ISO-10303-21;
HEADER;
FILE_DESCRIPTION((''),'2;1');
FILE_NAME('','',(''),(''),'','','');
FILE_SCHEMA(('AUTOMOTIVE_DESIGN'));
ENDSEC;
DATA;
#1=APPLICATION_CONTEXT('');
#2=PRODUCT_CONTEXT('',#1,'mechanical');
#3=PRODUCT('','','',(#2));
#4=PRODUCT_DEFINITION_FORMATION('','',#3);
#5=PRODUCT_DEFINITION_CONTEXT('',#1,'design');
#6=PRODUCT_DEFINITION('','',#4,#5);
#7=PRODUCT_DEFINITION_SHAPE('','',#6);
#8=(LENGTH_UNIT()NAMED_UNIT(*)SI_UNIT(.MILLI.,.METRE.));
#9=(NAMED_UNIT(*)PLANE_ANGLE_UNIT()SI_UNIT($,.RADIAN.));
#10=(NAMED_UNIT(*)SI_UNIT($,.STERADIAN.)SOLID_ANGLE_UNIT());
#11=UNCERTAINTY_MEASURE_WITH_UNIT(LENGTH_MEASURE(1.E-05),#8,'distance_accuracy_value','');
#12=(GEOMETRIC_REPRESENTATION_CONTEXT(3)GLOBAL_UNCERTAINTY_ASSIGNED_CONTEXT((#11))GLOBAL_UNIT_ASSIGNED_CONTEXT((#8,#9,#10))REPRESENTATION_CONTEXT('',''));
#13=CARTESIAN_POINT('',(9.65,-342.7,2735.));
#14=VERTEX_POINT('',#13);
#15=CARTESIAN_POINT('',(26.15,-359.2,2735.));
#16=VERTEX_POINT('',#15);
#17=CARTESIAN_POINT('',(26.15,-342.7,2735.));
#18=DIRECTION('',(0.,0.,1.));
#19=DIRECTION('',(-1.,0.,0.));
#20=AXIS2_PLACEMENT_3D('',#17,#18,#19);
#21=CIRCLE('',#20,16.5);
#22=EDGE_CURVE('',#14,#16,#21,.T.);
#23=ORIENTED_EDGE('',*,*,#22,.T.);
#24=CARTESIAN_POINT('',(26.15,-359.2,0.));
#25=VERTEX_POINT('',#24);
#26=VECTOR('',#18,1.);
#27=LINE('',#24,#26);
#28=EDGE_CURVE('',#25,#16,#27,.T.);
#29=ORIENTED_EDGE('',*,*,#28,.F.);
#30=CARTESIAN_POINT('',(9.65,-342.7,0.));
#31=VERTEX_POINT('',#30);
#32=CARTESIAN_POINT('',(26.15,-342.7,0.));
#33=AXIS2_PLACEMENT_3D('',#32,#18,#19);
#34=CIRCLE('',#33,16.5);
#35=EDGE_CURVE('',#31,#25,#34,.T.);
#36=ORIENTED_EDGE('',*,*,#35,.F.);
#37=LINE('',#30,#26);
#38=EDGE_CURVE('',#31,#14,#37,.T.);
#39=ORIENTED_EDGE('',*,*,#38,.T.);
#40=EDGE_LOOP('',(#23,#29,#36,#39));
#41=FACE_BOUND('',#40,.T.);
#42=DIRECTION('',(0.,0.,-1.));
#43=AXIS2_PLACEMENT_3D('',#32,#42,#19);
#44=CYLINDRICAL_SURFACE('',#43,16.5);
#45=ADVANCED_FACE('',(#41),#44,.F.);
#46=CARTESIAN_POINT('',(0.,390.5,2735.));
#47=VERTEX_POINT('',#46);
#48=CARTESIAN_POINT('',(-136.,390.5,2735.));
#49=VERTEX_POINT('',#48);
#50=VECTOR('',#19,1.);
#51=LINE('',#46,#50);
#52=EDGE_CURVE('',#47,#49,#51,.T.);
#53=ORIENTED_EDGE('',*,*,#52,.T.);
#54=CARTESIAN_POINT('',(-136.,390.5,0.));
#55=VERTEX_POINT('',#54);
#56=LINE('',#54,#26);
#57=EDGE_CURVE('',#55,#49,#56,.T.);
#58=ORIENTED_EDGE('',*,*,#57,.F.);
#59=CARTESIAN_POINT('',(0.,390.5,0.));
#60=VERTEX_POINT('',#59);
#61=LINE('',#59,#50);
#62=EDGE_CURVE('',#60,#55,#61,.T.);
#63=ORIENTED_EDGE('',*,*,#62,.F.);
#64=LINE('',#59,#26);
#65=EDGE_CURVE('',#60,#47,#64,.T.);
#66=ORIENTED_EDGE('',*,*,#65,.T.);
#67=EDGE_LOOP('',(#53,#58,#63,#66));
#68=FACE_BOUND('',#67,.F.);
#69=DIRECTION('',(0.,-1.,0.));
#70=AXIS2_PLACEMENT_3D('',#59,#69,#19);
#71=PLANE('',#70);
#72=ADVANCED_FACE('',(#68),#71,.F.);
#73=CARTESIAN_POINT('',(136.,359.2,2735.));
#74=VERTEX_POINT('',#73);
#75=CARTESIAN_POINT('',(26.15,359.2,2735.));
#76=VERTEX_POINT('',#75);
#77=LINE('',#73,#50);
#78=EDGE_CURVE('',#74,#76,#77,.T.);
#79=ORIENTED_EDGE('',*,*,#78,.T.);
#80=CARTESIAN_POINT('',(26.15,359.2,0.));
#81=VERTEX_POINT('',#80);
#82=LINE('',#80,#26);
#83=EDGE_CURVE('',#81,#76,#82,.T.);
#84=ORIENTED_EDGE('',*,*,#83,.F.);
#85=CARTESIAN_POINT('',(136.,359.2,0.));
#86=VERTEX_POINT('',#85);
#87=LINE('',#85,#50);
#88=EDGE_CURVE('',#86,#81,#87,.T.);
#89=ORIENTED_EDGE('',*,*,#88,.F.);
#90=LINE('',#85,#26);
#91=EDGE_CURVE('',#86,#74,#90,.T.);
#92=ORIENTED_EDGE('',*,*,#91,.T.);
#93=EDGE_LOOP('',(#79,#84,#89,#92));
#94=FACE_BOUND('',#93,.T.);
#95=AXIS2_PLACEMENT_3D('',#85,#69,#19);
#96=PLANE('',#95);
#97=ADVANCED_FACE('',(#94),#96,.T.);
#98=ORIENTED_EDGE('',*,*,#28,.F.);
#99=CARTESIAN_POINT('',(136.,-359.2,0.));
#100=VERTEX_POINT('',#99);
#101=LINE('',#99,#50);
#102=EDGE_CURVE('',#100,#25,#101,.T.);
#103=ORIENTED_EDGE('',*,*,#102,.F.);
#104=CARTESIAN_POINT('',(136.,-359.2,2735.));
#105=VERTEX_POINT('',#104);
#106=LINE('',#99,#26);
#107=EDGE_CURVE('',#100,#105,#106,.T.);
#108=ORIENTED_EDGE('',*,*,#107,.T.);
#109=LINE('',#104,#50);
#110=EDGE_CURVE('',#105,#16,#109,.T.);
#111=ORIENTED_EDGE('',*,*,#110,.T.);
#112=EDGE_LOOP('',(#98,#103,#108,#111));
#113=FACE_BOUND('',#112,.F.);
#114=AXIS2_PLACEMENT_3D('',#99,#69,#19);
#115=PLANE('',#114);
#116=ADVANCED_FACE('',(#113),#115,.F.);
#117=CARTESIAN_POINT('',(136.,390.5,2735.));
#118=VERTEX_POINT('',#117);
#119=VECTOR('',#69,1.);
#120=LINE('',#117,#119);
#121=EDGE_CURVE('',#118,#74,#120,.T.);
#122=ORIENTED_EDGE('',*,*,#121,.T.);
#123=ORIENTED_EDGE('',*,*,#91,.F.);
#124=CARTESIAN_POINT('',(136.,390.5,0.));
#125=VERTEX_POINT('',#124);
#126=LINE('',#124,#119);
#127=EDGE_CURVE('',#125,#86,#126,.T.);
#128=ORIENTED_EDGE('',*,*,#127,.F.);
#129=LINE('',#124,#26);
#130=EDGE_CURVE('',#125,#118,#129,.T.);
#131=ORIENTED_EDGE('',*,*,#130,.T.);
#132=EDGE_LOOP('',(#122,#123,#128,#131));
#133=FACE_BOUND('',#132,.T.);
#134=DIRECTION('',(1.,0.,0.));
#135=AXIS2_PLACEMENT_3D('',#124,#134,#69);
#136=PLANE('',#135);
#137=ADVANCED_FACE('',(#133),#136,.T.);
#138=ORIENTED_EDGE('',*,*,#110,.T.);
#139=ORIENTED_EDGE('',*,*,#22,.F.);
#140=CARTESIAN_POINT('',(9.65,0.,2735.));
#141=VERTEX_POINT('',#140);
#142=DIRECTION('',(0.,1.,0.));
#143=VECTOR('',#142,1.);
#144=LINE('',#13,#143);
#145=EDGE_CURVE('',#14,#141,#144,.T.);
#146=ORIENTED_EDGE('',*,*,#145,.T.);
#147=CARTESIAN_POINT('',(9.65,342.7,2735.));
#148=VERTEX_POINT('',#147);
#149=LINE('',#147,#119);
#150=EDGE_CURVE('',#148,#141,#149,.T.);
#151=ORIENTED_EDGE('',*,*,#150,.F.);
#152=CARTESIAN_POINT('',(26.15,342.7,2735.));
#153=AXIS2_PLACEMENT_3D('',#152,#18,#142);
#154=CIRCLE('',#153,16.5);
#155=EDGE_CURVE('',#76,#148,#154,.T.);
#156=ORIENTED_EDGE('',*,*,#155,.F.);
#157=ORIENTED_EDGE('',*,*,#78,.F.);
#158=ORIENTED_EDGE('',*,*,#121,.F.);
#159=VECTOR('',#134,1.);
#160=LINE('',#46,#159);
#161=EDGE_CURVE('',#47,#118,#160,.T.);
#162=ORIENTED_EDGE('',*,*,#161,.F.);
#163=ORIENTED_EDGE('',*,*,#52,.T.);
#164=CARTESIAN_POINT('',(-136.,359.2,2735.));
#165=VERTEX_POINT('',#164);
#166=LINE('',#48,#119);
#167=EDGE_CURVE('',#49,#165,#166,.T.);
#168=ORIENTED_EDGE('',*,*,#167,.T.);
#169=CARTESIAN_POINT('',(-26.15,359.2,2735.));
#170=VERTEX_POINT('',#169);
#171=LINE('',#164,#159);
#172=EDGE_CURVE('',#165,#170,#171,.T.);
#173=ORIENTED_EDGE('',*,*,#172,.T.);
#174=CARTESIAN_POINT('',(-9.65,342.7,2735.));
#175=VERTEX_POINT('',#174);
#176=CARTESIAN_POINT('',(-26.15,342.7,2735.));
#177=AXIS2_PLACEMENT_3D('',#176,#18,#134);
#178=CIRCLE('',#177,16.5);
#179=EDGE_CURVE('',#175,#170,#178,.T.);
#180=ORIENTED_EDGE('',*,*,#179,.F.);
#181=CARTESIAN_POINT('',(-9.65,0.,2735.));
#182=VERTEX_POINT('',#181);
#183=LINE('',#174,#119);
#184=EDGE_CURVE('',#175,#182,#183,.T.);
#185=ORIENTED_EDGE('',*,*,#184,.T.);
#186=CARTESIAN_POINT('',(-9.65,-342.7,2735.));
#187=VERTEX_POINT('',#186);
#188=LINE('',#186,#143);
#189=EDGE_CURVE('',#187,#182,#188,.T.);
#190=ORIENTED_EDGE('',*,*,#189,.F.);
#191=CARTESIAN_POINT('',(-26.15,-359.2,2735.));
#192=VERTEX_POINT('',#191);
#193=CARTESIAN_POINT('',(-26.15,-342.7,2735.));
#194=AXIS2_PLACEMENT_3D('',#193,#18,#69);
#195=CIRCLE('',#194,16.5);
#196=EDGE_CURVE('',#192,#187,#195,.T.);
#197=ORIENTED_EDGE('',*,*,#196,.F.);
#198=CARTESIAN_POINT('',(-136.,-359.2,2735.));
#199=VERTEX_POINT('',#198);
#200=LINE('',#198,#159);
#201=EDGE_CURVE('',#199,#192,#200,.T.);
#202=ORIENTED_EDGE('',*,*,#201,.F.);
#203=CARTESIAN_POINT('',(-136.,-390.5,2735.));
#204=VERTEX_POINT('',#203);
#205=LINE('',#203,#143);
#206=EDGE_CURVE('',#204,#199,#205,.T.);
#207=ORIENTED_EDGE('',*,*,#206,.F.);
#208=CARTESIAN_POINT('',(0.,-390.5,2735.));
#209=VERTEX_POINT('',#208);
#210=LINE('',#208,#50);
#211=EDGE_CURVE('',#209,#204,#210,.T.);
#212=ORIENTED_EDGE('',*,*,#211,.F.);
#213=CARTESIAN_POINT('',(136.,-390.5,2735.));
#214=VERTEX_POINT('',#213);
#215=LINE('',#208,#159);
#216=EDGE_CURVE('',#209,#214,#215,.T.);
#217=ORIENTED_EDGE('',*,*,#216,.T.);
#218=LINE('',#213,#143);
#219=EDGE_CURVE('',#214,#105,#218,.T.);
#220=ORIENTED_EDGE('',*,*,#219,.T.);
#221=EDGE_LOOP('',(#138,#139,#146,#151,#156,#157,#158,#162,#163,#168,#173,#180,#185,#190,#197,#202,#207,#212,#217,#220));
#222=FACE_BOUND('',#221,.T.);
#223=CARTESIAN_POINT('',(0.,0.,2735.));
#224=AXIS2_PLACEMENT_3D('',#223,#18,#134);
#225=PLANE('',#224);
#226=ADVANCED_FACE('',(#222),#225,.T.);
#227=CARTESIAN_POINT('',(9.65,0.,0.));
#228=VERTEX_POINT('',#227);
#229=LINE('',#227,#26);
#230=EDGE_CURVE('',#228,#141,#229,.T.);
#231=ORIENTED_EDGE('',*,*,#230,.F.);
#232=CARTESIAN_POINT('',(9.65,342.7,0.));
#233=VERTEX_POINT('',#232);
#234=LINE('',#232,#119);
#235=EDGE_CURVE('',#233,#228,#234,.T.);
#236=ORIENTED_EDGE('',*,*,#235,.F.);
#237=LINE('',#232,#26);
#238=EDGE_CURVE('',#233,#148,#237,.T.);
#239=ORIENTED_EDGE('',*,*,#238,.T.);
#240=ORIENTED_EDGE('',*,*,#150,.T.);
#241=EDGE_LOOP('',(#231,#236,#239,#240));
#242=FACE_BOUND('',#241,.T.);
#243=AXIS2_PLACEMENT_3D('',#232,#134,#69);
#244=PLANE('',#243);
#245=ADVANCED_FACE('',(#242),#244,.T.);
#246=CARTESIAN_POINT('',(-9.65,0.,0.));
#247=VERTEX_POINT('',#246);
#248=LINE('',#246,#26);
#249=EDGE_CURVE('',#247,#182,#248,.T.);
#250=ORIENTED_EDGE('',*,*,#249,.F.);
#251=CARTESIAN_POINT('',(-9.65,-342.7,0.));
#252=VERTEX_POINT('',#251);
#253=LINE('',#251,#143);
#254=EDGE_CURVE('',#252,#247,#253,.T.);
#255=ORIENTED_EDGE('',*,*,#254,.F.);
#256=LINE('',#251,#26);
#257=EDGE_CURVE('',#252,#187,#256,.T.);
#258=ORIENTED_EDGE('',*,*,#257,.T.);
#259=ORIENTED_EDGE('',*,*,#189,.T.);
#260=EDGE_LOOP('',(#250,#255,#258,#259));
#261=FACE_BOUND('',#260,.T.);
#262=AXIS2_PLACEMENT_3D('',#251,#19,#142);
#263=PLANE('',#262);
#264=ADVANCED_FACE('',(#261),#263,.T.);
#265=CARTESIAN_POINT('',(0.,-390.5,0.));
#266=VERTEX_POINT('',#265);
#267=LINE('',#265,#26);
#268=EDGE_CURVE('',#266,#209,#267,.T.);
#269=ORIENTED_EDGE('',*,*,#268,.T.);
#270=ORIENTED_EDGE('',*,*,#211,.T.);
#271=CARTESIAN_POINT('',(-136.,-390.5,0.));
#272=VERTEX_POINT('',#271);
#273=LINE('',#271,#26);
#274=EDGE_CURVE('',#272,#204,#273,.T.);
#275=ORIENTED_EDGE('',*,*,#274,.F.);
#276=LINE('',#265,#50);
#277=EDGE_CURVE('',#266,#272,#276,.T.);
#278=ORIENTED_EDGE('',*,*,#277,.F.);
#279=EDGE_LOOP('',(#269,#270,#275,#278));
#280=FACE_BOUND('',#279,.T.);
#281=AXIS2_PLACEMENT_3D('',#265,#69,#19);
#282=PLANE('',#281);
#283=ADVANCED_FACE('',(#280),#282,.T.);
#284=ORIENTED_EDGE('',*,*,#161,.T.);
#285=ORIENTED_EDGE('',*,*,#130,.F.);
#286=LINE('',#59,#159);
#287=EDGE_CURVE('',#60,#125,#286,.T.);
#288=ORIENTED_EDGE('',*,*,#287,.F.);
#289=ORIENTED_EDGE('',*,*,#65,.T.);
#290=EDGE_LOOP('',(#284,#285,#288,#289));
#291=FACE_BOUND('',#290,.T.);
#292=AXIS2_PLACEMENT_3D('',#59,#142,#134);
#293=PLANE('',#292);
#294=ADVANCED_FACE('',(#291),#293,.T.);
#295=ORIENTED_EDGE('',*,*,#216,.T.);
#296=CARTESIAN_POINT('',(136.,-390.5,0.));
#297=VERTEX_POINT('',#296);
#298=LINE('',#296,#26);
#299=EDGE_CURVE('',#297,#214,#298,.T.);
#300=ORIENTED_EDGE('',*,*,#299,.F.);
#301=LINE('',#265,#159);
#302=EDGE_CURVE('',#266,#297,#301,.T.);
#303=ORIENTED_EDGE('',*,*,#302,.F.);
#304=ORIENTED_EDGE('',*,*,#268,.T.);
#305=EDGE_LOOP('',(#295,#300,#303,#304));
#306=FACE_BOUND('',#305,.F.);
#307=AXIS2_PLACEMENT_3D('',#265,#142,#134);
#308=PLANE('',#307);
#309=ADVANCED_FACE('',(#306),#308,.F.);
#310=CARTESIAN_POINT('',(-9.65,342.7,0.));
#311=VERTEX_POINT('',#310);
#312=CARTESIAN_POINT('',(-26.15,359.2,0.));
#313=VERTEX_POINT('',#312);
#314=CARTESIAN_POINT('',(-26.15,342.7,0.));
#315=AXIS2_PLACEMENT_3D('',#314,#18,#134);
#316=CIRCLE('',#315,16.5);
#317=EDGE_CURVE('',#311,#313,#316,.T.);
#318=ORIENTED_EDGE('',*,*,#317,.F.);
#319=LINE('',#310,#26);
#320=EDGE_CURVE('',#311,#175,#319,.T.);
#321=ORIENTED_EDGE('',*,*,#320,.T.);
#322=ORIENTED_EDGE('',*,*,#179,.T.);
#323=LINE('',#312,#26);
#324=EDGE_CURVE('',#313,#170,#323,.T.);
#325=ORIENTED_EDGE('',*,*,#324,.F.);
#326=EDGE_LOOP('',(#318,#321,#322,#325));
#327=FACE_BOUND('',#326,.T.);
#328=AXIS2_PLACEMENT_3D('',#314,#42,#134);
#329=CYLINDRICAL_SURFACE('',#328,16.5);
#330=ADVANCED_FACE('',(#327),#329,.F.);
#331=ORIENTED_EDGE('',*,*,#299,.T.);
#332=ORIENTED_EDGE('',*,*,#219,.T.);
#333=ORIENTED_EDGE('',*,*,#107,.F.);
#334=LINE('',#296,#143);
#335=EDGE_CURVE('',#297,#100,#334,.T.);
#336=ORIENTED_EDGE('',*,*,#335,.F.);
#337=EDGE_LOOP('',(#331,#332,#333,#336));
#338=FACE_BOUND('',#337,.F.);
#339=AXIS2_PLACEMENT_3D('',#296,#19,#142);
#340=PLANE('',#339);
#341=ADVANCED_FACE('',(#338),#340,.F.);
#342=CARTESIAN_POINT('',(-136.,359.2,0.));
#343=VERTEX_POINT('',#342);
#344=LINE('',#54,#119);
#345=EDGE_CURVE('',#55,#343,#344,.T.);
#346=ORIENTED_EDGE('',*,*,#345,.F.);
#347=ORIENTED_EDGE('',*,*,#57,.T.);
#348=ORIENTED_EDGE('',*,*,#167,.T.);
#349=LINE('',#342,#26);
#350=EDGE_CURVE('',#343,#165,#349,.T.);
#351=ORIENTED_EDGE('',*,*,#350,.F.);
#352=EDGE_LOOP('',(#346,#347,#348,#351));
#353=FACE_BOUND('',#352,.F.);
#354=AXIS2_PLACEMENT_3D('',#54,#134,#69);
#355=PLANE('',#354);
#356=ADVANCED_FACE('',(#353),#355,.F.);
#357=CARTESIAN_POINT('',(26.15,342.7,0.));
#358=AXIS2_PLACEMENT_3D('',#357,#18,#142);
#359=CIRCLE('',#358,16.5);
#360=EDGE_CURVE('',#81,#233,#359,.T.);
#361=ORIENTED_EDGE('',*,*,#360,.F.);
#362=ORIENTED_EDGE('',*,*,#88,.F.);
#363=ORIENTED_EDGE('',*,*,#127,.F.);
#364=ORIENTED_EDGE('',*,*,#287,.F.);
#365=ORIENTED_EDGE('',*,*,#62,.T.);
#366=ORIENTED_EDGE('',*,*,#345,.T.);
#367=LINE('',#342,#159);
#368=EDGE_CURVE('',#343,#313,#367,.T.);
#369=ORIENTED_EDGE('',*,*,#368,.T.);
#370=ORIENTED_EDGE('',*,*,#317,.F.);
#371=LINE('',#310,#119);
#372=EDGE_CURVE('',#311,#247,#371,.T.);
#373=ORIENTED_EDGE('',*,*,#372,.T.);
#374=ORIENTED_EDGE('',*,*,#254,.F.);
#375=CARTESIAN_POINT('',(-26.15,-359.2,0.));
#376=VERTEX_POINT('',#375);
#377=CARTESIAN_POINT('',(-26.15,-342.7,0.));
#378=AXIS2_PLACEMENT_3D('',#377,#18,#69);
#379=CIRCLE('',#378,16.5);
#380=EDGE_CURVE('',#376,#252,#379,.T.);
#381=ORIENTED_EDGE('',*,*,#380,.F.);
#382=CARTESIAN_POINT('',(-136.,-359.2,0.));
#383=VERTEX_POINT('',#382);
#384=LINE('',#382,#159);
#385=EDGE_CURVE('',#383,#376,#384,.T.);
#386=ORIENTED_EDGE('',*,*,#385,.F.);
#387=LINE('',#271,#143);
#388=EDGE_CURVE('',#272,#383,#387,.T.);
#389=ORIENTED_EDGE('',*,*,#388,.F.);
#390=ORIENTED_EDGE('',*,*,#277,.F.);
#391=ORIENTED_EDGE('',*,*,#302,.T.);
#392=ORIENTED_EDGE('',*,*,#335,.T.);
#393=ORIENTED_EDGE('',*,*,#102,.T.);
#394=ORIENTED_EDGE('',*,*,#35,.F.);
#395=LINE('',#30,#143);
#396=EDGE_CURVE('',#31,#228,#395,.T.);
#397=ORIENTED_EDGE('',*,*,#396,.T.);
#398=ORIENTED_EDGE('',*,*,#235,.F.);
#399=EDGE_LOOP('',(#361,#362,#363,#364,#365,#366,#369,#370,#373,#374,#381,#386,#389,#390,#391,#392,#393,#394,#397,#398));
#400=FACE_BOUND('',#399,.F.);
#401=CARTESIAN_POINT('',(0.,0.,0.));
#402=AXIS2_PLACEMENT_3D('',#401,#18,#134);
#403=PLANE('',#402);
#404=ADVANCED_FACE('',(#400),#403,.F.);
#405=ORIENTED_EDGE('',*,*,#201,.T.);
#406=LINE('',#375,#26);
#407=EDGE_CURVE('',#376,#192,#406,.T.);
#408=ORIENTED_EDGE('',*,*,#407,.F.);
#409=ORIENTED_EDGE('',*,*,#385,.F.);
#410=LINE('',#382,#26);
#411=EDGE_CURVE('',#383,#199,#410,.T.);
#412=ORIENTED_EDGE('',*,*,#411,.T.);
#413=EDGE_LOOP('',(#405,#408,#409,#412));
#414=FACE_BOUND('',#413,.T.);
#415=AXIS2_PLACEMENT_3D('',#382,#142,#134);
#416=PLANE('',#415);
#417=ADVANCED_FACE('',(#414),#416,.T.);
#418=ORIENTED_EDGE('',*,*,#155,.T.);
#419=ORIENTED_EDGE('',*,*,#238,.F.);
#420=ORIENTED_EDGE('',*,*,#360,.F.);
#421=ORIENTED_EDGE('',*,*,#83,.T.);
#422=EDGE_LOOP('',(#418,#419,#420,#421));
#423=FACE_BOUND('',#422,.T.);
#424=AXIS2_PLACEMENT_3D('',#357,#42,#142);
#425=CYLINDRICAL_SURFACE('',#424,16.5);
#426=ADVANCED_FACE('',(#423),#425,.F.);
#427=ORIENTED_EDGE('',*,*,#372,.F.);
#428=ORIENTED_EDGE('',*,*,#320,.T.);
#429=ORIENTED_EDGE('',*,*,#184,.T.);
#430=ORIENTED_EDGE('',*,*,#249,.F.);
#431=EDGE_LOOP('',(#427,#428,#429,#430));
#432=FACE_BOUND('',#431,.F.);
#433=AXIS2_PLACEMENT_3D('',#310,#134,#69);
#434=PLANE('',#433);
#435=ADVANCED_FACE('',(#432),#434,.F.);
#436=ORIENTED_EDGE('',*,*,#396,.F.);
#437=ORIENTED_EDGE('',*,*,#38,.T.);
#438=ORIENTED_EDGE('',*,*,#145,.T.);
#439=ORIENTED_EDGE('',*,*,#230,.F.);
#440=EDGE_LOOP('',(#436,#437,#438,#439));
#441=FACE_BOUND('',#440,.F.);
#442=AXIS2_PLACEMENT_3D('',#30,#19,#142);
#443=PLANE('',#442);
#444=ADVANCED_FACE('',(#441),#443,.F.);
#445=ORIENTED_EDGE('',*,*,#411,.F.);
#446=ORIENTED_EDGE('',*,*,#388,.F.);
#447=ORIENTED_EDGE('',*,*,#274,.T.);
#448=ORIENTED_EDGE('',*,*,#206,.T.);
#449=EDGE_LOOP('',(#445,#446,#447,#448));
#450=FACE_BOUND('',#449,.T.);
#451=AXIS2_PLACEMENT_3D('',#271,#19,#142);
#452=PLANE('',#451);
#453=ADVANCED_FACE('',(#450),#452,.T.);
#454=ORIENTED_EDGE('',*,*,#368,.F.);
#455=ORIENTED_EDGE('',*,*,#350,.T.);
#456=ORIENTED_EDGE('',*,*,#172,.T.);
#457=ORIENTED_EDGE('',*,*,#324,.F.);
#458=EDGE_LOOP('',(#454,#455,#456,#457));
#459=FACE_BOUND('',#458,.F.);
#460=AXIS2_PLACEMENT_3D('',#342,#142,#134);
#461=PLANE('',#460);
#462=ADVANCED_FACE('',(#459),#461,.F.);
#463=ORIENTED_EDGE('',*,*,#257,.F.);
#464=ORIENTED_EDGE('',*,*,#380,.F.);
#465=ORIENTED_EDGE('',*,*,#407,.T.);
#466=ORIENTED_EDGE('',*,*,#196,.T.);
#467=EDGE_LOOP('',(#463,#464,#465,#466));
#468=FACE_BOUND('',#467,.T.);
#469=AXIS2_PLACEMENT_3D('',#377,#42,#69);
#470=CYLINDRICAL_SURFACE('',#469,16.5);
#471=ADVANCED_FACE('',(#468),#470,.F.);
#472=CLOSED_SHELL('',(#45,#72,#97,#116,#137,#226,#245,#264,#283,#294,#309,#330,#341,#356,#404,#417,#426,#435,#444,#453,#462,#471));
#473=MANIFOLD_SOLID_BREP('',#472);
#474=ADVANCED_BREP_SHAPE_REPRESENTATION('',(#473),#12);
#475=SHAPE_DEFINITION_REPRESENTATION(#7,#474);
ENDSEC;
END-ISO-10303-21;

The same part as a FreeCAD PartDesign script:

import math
import FreeCAD as App
import Part
import Sketcher
Q = App.Units.Quantity

doc = App.newDocument("Part")
body = doc.addObject("PartDesign::Body", "Body")

# Sketch on XY plane
sketch1 = doc.addObject("Sketcher::SketchObject", "Sketch")
body.addObject(sketch1)
sketch1.AttachmentSupport = (doc.XY_Plane, [""])
sketch1.MapMode = "FlatFace"
sketch1.addGeometry(Part.LineSegment(App.Vector(-136, -359.2, 0), App.Vector(-136, -390.5, 0)), False)
sketch1.addGeometry(Part.LineSegment(App.Vector(-136, -390.5, 0), App.Vector(136, -390.5, 0)), False)
sketch1.addGeometry(Part.LineSegment(App.Vector(136, -390.5, 0), App.Vector(136, -359.2, 0)), False)
sketch1.addGeometry(Part.LineSegment(App.Vector(136, -359.2, 0), App.Vector(26.15, -359.2, 0)), False)
sketch1.addGeometry(Part.ArcOfCircle(Part.Circle(App.Vector(26.15, -342.7, 0), App.Vector(0, 0, 1), 16.5), math.radians(180), math.radians(270)), False)
sketch1.addGeometry(Part.LineSegment(App.Vector(9.65, -342.7, 0), App.Vector(9.65, 342.7, 0)), False)
sketch1.addGeometry(Part.ArcOfCircle(Part.Circle(App.Vector(26.15, 342.7, 0), App.Vector(0, 0, 1), 16.5), math.radians(90), math.radians(180)), False)
sketch1.addGeometry(Part.LineSegment(App.Vector(26.15, 359.2, 0), App.Vector(136, 359.2, 0)), False)
sketch1.addGeometry(Part.LineSegment(App.Vector(136, 359.2, 0), App.Vector(136, 390.5, 0)), False)
sketch1.addGeometry(Part.LineSegment(App.Vector(136, 390.5, 0), App.Vector(-136, 390.5, 0)), False)
sketch1.addGeometry(Part.LineSegment(App.Vector(-136, 390.5, 0), App.Vector(-136, 359.2, 0)), False)
sketch1.addGeometry(Part.LineSegment(App.Vector(-136, 359.2, 0), App.Vector(-26.15, 359.2, 0)), False)
sketch1.addGeometry(Part.ArcOfCircle(Part.Circle(App.Vector(-26.15, 342.7, 0), App.Vector(0, 0, 1), 16.5), math.radians(0), math.radians(90)), False)
sketch1.addGeometry(Part.LineSegment(App.Vector(-9.65, 342.7, 0), App.Vector(-9.65, -342.7, 0)), False)
sketch1.addGeometry(Part.ArcOfCircle(Part.Circle(App.Vector(-26.15, -342.7, 0), App.Vector(0, 0, 1), 16.5), math.radians(-90), math.radians(0)), False)
sketch1.addGeometry(Part.LineSegment(App.Vector(-26.15, -359.2, 0), App.Vector(-136, -359.2, 0)), False)
sketch1.addConstraint(Sketcher.Constraint("Coincident", 0, 2, 1, 1))
sketch1.addConstraint(Sketcher.Constraint("Coincident", 1, 2, 2, 1))
sketch1.addConstraint(Sketcher.Constraint("Coincident", 2, 2, 3, 1))
sketch1.addConstraint(Sketcher.Constraint("Tangent", 3, 2, 4, 2))
sketch1.addConstraint(Sketcher.Constraint("Tangent", 4, 1, 5, 1))
sketch1.addConstraint(Sketcher.Constraint("Tangent", 5, 2, 6, 2))
sketch1.addConstraint(Sketcher.Constraint("Tangent", 6, 1, 7, 1))
sketch1.addConstraint(Sketcher.Constraint("Coincident", 7, 2, 8, 1))
sketch1.addConstraint(Sketcher.Constraint("Coincident", 8, 2, 9, 1))
sketch1.addConstraint(Sketcher.Constraint("Coincident", 9, 2, 10, 1))
sketch1.addConstraint(Sketcher.Constraint("Coincident", 10, 2, 11, 1))
sketch1.addConstraint(Sketcher.Constraint("Tangent", 11, 2, 12, 2))
sketch1.addConstraint(Sketcher.Constraint("Tangent", 12, 1, 13, 1))
sketch1.addConstraint(Sketcher.Constraint("Tangent", 13, 2, 14, 2))
sketch1.addConstraint(Sketcher.Constraint("Tangent", 14, 1, 15, 1))
sketch1.addConstraint(Sketcher.Constraint("Coincident", 15, 2, 0, 1))
sketch1.addConstraint(Sketcher.Constraint("Vertical", 0))
sketch1.addConstraint(Sketcher.Constraint("Horizontal", 1))
sketch1.addConstraint(Sketcher.Constraint("Vertical", 2))
sketch1.addConstraint(Sketcher.Constraint("Horizontal", 3))
sketch1.addConstraint(Sketcher.Constraint("Vertical", 5))
sketch1.addConstraint(Sketcher.Constraint("Horizontal", 7))
sketch1.addConstraint(Sketcher.Constraint("Vertical", 8))
sketch1.addConstraint(Sketcher.Constraint("Horizontal", 9))
sketch1.addConstraint(Sketcher.Constraint("Vertical", 10))
sketch1.addConstraint(Sketcher.Constraint("Horizontal", 11))
sketch1.addConstraint(Sketcher.Constraint("Vertical", 13))
sketch1.addConstraint(Sketcher.Constraint("Horizontal", 15))
sketch1.addConstraint(Sketcher.Constraint("Equal", 4, 6))
sketch1.addConstraint(Sketcher.Constraint("Equal", 6, 12))
sketch1.addConstraint(Sketcher.Constraint("Equal", 12, 14))
sketch1.addConstraint(Sketcher.Constraint("Symmetric", 4, 3, 12, 3, -1, 1))
sketch1.addConstraint(Sketcher.Constraint("Symmetric", 0, 2, 8, 2, -1, 1))
sketch1.addConstraint(Sketcher.Constraint("Symmetric", 7, 2, 10, 2, -2))
sketch1.addConstraint(Sketcher.Constraint("Symmetric", 2, 2, 15, 2, -2))
sketch1.addConstraint(Sketcher.Constraint("Radius", 4, Q("16.5 mm")))
sketch1.addConstraint(Sketcher.Constraint("DistanceY", 0, 2, 0, 1, Q("31.3 mm")))
sketch1.addConstraint(Sketcher.Constraint("DistanceX", 0, 2, -1, 1, Q("136 mm")))
sketch1.addConstraint(Sketcher.Constraint("DistanceY", 0, 2, -1, 1, Q("390.5 mm")))
sketch1.addConstraint(Sketcher.Constraint("DistanceX", -1, 1, 4, 1, Q("9.65 mm")))
pad1 = doc.addObject("PartDesign::Pad", "Pad")
body.addObject(pad1)
pad1.Profile = sketch1
pad1.Length = 2735

doc.recompute()
